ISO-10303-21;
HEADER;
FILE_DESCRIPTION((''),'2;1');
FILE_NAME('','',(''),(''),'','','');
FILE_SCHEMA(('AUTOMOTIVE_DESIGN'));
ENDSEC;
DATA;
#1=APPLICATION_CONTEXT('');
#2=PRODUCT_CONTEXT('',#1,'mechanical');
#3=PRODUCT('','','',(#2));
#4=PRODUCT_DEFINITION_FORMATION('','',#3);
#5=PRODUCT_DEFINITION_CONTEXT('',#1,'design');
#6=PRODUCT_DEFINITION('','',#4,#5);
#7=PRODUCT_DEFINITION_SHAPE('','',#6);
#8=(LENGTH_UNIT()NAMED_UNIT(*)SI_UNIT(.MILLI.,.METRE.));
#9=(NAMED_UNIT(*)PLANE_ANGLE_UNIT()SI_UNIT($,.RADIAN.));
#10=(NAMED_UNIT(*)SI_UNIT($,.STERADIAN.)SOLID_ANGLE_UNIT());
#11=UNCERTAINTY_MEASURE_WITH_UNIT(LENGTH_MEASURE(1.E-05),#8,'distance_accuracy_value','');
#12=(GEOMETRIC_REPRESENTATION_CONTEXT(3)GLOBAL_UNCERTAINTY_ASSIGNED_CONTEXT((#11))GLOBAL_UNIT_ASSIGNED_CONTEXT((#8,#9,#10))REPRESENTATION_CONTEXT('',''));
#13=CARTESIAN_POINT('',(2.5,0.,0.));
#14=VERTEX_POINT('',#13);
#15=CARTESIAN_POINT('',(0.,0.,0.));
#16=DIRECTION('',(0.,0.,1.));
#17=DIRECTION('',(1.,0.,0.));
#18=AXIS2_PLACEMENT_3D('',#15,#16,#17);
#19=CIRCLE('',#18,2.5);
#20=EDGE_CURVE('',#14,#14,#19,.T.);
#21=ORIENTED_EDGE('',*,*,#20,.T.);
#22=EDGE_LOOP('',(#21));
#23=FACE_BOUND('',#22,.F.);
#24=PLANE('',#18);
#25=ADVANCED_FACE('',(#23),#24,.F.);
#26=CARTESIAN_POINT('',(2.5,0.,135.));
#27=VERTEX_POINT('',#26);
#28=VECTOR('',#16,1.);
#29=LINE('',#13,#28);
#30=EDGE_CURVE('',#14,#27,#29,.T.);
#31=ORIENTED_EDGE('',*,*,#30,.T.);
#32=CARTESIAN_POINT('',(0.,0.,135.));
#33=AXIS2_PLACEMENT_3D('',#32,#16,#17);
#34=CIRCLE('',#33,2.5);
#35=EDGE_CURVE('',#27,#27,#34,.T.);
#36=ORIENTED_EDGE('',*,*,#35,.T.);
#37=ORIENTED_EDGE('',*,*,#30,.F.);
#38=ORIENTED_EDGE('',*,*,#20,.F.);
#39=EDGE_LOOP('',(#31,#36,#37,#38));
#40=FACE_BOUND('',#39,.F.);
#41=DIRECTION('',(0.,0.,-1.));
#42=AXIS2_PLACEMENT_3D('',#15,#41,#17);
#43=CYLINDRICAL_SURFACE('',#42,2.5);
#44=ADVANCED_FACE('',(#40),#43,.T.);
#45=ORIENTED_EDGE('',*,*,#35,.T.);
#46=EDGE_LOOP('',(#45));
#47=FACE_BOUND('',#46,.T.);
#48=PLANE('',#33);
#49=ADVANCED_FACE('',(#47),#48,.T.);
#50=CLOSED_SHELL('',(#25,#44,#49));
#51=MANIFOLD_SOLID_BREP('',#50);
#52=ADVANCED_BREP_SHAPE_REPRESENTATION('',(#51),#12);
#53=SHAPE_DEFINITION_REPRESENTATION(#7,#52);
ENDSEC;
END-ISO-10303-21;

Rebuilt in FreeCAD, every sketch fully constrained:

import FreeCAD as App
import Part
import Sketcher
from FreeCAD import Vector
Q = App.Units.Quantity

doc = App.newDocument("Part")
body = doc.addObject("PartDesign::Body", "Body")

sketch1 = body.newObject("Sketcher::SketchObject", "Sketch")
sketch1.AttachmentSupport = (doc.getObject("XY_Plane"), [""])
sketch1.MapMode = "FlatFace"
sketch1.addGeometry(Part.Circle(Vector(0, 0, 0), Vector(0, 0, 1), 2.5), False)
sketch1.addConstraint(Sketcher.Constraint("Coincident", 0, 3, -1, 1))
sketch1.addConstraint(Sketcher.Constraint("Diameter", 0, Q("5 mm")))
pad1 = body.newObject("PartDesign::Pad", "Pad")
pad1.Profile = sketch1
pad1.Length = 135

doc.recompute()
